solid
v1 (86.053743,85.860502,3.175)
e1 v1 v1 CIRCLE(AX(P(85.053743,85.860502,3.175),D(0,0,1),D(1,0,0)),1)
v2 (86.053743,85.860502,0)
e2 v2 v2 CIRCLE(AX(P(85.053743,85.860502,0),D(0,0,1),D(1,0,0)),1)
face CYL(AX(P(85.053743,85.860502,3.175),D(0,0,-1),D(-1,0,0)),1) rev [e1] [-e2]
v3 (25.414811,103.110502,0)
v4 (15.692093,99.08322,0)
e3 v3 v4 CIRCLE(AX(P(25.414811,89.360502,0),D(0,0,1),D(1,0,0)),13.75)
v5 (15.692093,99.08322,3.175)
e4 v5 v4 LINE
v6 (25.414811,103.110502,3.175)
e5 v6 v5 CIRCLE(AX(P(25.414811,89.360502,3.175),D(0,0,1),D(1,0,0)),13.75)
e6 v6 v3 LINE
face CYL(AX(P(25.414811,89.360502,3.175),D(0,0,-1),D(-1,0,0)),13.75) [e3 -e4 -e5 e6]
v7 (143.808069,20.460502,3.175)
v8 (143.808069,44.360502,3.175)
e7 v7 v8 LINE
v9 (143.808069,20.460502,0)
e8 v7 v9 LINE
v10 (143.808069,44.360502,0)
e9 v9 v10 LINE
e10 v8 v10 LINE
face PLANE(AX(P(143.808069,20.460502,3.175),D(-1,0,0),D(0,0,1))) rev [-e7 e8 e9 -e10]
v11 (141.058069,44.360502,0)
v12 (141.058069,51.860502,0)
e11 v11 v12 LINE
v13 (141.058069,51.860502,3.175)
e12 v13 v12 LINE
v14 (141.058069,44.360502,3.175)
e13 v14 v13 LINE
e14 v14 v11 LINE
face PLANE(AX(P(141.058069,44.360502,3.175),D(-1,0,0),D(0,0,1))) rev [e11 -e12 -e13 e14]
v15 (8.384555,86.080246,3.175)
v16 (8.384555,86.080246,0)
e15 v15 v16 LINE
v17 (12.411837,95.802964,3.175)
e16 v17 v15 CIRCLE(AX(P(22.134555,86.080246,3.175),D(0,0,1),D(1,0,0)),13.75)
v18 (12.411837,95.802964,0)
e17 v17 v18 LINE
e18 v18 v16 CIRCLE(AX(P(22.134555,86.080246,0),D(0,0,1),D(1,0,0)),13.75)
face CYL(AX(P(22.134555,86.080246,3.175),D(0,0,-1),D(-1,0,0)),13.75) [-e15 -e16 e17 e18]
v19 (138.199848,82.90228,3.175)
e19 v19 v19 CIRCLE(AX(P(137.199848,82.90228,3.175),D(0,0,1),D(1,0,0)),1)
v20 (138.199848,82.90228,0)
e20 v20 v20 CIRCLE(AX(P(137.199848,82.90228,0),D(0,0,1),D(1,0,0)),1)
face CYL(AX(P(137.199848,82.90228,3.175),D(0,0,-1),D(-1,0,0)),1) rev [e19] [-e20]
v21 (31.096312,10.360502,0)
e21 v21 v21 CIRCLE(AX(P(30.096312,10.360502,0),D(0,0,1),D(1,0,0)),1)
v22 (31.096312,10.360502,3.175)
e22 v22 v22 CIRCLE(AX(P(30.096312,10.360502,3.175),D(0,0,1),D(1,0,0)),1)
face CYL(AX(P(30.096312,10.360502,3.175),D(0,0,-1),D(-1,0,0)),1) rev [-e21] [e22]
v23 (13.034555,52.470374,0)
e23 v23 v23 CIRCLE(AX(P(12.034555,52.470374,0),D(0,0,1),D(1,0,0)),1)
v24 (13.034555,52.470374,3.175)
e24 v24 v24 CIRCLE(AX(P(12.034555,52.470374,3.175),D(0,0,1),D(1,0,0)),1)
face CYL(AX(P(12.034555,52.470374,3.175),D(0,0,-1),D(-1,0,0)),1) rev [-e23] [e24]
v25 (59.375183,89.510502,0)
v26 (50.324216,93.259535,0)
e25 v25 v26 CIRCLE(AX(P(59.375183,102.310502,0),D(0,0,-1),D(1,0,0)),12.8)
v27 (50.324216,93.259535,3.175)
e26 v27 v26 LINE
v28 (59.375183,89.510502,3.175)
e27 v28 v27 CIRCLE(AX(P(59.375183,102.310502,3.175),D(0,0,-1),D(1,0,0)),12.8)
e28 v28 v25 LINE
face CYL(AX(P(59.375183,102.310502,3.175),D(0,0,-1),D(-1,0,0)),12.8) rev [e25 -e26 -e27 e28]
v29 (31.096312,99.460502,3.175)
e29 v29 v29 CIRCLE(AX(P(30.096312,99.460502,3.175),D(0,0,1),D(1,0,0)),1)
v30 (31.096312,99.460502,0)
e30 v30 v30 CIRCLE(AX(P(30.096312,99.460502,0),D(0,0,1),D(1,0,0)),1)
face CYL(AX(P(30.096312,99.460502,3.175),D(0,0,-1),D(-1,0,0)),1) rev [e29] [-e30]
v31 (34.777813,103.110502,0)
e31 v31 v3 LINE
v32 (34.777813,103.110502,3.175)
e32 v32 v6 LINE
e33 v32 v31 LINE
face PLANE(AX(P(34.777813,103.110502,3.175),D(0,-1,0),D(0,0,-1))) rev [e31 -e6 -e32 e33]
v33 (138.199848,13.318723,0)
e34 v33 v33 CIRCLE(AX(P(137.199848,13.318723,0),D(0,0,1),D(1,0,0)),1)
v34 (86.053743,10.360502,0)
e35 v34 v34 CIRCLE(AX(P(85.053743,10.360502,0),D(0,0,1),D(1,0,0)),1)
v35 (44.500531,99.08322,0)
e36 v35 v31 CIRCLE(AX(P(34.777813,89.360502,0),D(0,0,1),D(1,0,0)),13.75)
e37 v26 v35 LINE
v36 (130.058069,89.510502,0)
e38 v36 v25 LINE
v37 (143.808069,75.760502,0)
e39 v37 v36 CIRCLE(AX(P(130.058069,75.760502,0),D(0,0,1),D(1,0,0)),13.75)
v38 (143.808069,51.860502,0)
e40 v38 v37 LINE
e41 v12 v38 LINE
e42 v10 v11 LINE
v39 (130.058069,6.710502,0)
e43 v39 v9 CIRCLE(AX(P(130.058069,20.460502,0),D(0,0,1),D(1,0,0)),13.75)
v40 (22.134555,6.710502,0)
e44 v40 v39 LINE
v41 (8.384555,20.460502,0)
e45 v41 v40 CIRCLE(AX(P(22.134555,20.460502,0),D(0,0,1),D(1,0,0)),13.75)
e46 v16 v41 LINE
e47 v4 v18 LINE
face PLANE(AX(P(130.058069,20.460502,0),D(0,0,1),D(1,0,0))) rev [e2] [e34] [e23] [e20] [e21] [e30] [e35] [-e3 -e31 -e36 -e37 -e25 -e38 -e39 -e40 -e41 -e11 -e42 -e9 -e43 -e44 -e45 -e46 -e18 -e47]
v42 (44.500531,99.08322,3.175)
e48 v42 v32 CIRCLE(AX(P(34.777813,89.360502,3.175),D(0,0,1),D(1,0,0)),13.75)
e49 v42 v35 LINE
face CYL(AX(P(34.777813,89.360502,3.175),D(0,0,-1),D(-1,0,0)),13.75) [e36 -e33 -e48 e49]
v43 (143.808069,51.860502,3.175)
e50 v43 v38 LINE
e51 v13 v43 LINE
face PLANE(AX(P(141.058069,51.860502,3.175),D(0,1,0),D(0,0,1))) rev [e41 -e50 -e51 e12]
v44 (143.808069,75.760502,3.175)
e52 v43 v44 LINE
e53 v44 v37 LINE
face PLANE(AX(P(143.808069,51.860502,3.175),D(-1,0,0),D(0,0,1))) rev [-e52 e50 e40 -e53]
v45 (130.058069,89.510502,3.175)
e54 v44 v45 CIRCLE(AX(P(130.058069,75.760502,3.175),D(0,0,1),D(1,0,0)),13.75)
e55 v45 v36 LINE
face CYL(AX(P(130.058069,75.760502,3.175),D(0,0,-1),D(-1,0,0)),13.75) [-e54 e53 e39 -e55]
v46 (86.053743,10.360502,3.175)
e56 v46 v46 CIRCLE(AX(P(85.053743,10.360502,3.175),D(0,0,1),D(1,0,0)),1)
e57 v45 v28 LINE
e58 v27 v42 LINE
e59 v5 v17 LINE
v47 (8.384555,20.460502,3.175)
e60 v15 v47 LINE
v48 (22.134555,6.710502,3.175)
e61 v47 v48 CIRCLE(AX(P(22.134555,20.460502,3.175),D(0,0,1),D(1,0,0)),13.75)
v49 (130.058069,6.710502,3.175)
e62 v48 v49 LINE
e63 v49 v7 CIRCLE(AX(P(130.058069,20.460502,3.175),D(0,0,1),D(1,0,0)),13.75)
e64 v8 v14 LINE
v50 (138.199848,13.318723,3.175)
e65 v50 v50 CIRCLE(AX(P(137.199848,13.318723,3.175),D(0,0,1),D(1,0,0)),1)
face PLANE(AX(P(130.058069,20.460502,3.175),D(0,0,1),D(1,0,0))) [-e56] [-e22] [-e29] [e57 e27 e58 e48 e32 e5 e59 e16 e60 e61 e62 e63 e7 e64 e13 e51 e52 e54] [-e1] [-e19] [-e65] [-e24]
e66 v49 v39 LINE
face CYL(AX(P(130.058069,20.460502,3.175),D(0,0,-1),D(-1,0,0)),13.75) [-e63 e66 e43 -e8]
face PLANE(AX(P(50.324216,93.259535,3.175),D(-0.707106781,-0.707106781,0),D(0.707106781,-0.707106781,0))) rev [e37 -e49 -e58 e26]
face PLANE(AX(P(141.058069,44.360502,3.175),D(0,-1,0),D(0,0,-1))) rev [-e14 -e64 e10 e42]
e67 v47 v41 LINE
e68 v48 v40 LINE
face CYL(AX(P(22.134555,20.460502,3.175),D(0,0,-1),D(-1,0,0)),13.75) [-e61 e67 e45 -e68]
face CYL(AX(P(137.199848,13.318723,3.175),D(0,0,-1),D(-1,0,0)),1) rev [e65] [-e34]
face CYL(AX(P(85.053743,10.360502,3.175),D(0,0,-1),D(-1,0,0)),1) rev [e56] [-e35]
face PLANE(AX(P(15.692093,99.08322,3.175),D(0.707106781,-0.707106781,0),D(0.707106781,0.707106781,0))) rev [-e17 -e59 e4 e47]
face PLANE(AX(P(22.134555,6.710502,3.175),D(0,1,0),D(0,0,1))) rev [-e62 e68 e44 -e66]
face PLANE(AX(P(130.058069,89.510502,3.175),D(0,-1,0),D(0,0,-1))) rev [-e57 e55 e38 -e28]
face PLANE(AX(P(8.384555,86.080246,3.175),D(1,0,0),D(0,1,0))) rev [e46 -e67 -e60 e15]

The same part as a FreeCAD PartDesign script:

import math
import FreeCAD as App
import Part
import Sketcher

doc = App.newDocument("Part")
body = doc.addObject("PartDesign::Body", "Body")

# Sketch on XY plane
sketch1 = body.newObject("Sketcher::SketchObject", "Sketch")
sketch1.AttachmentSupport = (doc.getObject("XY_Plane"), [""])
sketch1.MapMode = "FlatFace"
sketch1.addGeometry(Part.LineSegment(App.Vector(143.8, 20.5, 0), App.Vector(143.8, 44.4, 0)), False)
sketch1.addGeometry(Part.LineSegment(App.Vector(143.8, 44.4, 0), App.Vector(141.1, 44.4, 0)), False)
sketch1.addGeometry(Part.LineSegment(App.Vector(141.1, 44.4, 0), App.Vector(141.1, 51.9, 0)), False)
sketch1.addGeometry(Part.LineSegment(App.Vector(141.1, 51.9, 0), App.Vector(143.8, 51.9, 0)), False)
sketch1.addGeometry(Part.LineSegment(App.Vector(143.8, 51.9, 0), App.Vector(143.8, 75.8, 0)), False)
sketch1.addGeometry(Part.ArcOfCircle(Part.Circle(App.Vector(130.1, 75.8, 0), App.Vector(0, 0, 1), 13.7), math.radians(0), math.radians(90)), False)
sketch1.addGeometry(Part.LineSegment(App.Vector(130.1, 89.5, 0), App.Vector(59.4, 89.5, 0)), False)
sketch1.addGeometry(Part.ArcOfCircle(Part.Circle(App.Vector(59.4, 102.3, 0), App.Vector(0, 0, 1), 12.8), math.radians(-135), math.radians(-90)), False)
sketch1.addGeometry(Part.LineSegment(App.Vector(50.3, 93.3, 0), App.Vector(44.5, 99.1, 0)), False)
sketch1.addGeometry(Part.ArcOfCircle(Part.Circle(App.Vector(34.8, 89.4, 0), App.Vector(0, 0, 1), 13.7), math.radians(45), math.radians(90)), False)
sketch1.addGeometry(Part.LineSegment(App.Vector(34.8, 103.1, 0), App.Vector(25.4, 103.1, 0)), False)
sketch1.addGeometry(Part.ArcOfCircle(Part.Circle(App.Vector(25.4, 89.4, 0), App.Vector(0, 0, 1), 13.7), math.radians(90), math.radians(135)), False)
sketch1.addGeometry(Part.LineSegment(App.Vector(15.7, 99.1, 0), App.Vector(12.4, 95.8, 0)), False)
sketch1.addGeometry(Part.ArcOfCircle(Part.Circle(App.Vector(22.1, 86.1, 0), App.Vector(0, 0, 1), 13.7), math.radians(135), math.radians(180)), False)
sketch1.addGeometry(Part.LineSegment(App.Vector(8.4, 86.1, 0), App.Vector(8.4, 20.5, 0)), False)
sketch1.addGeometry(Part.ArcOfCircle(Part.Circle(App.Vector(22.1, 20.5, 0), App.Vector(0, 0, 1), 13.7), math.radians(180), math.radians(270)), False)
sketch1.addGeometry(Part.LineSegment(App.Vector(22.1, 6.7, 0), App.Vector(130.1, 6.7, 0)), False)
sketch1.addGeometry(Part.ArcOfCircle(Part.Circle(App.Vector(130.1, 20.5, 0), App.Vector(0, 0, 1), 13.7), math.radians(-90), math.radians(0)), False)
sketch1.addGeometry(Part.Circle(App.Vector(30.1, 10.4, 0), App.Vector(0, 0, 1), 1), False)
sketch1.addGeometry(Part.Circle(App.Vector(12, 52.5, 0), App.Vector(0, 0, 1), 1), False)
sketch1.addGeometry(Part.Circle(App.Vector(85.1, 10.4, 0), App.Vector(0, 0, 1), 1), False)
sketch1.addGeometry(Part.Circle(App.Vector(137.2, 13.3, 0), App.Vector(0, 0, 1), 1), False)
sketch1.addGeometry(Part.Circle(App.Vector(30.1, 99.5, 0), App.Vector(0, 0, 1), 1), False)
sketch1.addGeometry(Part.Circle(App.Vector(85.1, 85.9, 0), App.Vector(0, 0, 1), 1), False)
sketch1.addGeometry(Part.Circle(App.Vector(137.2, 82.9, 0), App.Vector(0, 0, 1), 1), False)
sketch1.addConstraint(Sketcher.Constraint("Coincident", 0, 2, 1, 1))
sketch1.addConstraint(Sketcher.Constraint("Coincident", 1, 2, 2, 1))
sketch1.addConstraint(Sketcher.Constraint("Coincident", 2, 2, 3, 1))
sketch1.addConstraint(Sketcher.Constraint("Coincident", 3, 2, 4, 1))
sketch1.addConstraint(Sketcher.Constraint("Tangent", 4, 2, 5, 1))
sketch1.addConstraint(Sketcher.Constraint("Tangent", 5, 2, 6, 1))
sketch1.addConstraint(Sketcher.Constraint("Tangent", 6, 2, 7, 2))
sketch1.addConstraint(Sketcher.Constraint("Tangent", 7, 1, 8, 1))
sketch1.addConstraint(Sketcher.Constraint("Tangent", 8, 2, 9, 1))
sketch1.addConstraint(Sketcher.Constraint("Tangent", 9, 2, 10, 1))
sketch1.addConstraint(Sketcher.Constraint("Tangent", 10, 2, 11, 1))
sketch1.addConstraint(Sketcher.Constraint("Tangent", 11, 2, 12, 1))
sketch1.addConstraint(Sketcher.Constraint("Tangent", 12, 2, 13, 1))
sketch1.addConstraint(Sketcher.Constraint("Tangent", 13, 2, 14, 1))
sketch1.addConstraint(Sketcher.Constraint("Tangent", 14, 2, 15, 1))
sketch1.addConstraint(Sketcher.Constraint("Tangent", 15, 2, 16, 1))
sketch1.addConstraint(Sketcher.Constraint("Tangent", 16, 2, 17, 1))
sketch1.addConstraint(Sketcher.Constraint("Tangent", 17, 2, 0, 1))
sketch1.addConstraint(Sketcher.Constraint("Vertical", 0))
sketch1.addConstraint(Sketcher.Constraint("Horizontal", 1))
sketch1.addConstraint(Sketcher.Constraint("Vertical", 2))
sketch1.addConstraint(Sketcher.Constraint("Horizontal", 3))
sketch1.addConstraint(Sketcher.Constraint("Vertical", 4))
sketch1.addConstraint(Sketcher.Constraint("Horizontal", 6))
sketch1.addConstraint(Sketcher.Constraint("Horizontal", 10))
sketch1.addConstraint(Sketcher.Constraint("Vertical", 14))
sketch1.addConstraint(Sketcher.Constraint("Horizontal", 16))
sketch1.addConstraint(Sketcher.Constraint("Equal", 5, 9))
sketch1.addConstraint(Sketcher.Constraint("Equal", 9, 11))
sketch1.addConstraint(Sketcher.Constraint("Equal", 11, 13))
sketch1.addConstraint(Sketcher.Constraint("Equal", 13, 15))
sketch1.addConstraint(Sketcher.Constraint("Equal", 15, 17))
sketch1.addConstraint(Sketcher.Constraint("Equal", 18, 19))
sketch1.addConstraint(Sketcher.Constraint("Equal", 19, 20))
sketch1.addConstraint(Sketcher.Constraint("Equal", 20, 21))
sketch1.addConstraint(Sketcher.Constraint("Equal", 21, 22))
sketch1.addConstraint(Sketcher.Constraint("Equal", 22, 23))
sketch1.addConstraint(Sketcher.Constraint("Equal", 23, 24))
sketch1.addConstraint(Sketcher.Constraint("Perpendicular", 8, 12))
sketch1.addConstraint(Sketcher.Constraint("Horizontal", 18, 3, 20, 3))
sketch1.addConstraint(Sketcher.Constraint("Horizontal", 8, 2, 11, 2))
sketch1.addConstraint(Sketcher.Constraint("Vertical", 5, 3, 17, 3))
sketch1.addConstraint(Sketcher.Constraint("Vertical", 18, 3, 22, 3))
sketch1.addConstraint(Sketcher.Constraint("Vertical", 20, 3, 23, 3))
sketch1.addConstraint(Sketcher.Constraint("Vertical", 21, 3, 24, 3))
sketch1.addConstraint(Sketcher.Constraint("Equal", 0, 4))
sketch1.addConstraint(Sketcher.Constraint("Diameter", 18, 2.0))
sketch1.addConstraint(Sketcher.Constraint("Radius", 7, 12.8))
sketch1.addConstraint(Sketcher.Constraint("Radius", 5, 13.75))
sketch1.addConstraint(Sketcher.Constraint("DistanceY", 0, 1, 0, 2, 23.9))
sketch1.addConstraint(Sketcher.Constraint("DistanceY", 2, 1, 2, 2, 7.5))
sketch1.addConstraint(Sketcher.Constraint("DistanceY", 18, 3, 9, 3, 79.0))
sketch1.addConstraint(Sketcher.Constraint("DistanceY", 20, 3, 0, 2, 34.0))
sketch1.addConstraint(Sketcher.Constraint("DistanceX", 17, 3, 1, 2, 11.0))
sketch1.addConstraint(Sketcher.Constraint("DistanceX", 19, 3, 15, 3, 10.1))
sketch1.addConstraint(Sketcher.Constraint("DistanceY", 9, 3, 22, 3, 10.1))
sketch1.addConstraint(Sketcher.Constraint("DistanceY", 5, 3, 23, 3, 10.1))
sketch1.addConstraint(Sketcher.Constraint("DistanceY", -1, 1, 5, 3, 75.760502))
sketch1.addConstraint(Sketcher.Constraint("DistanceX", 18, 3, 9, 3, 4.681501))
sketch1.addConstraint(Sketcher.Constraint("DistanceX", 11, 3, 18, 3, 4.681501))
sketch1.addConstraint(Sketcher.Constraint("DistanceX", 6, 2, 6, 1, 70.682886))
sketch1.addConstraint(Sketcher.Constraint("DistanceX", 16, 1, 16, 2, 107.923514))
sketch1.addConstraint(Sketcher.Constraint("DistanceX", -1, 1, 5, 3, 130.058069))
sketch1.addConstraint(Sketcher.Constraint("DistanceY", -1, 1, 24, 3, 82.90228))
sketch1.addConstraint(Sketcher.Constraint("DistanceY", 15, 3, 19, 3, 32.009872))
sketch1.addConstraint(Sketcher.Constraint("DistanceX", 18, 3, 20, 3, 54.957431))
sketch1.addConstraint(Sketcher.Constraint("DistanceX", 17, 3, 21, 3, 7.141778))
sketch1.addConstraint(Sketcher.Constraint("DistanceY", 21, 3, 17, 3, 7.141778))
pad1 = body.newObject("PartDesign::Pad", "Pad")
pad1.Profile = sketch1
pad1.Length = 3.175

doc.recompute()
